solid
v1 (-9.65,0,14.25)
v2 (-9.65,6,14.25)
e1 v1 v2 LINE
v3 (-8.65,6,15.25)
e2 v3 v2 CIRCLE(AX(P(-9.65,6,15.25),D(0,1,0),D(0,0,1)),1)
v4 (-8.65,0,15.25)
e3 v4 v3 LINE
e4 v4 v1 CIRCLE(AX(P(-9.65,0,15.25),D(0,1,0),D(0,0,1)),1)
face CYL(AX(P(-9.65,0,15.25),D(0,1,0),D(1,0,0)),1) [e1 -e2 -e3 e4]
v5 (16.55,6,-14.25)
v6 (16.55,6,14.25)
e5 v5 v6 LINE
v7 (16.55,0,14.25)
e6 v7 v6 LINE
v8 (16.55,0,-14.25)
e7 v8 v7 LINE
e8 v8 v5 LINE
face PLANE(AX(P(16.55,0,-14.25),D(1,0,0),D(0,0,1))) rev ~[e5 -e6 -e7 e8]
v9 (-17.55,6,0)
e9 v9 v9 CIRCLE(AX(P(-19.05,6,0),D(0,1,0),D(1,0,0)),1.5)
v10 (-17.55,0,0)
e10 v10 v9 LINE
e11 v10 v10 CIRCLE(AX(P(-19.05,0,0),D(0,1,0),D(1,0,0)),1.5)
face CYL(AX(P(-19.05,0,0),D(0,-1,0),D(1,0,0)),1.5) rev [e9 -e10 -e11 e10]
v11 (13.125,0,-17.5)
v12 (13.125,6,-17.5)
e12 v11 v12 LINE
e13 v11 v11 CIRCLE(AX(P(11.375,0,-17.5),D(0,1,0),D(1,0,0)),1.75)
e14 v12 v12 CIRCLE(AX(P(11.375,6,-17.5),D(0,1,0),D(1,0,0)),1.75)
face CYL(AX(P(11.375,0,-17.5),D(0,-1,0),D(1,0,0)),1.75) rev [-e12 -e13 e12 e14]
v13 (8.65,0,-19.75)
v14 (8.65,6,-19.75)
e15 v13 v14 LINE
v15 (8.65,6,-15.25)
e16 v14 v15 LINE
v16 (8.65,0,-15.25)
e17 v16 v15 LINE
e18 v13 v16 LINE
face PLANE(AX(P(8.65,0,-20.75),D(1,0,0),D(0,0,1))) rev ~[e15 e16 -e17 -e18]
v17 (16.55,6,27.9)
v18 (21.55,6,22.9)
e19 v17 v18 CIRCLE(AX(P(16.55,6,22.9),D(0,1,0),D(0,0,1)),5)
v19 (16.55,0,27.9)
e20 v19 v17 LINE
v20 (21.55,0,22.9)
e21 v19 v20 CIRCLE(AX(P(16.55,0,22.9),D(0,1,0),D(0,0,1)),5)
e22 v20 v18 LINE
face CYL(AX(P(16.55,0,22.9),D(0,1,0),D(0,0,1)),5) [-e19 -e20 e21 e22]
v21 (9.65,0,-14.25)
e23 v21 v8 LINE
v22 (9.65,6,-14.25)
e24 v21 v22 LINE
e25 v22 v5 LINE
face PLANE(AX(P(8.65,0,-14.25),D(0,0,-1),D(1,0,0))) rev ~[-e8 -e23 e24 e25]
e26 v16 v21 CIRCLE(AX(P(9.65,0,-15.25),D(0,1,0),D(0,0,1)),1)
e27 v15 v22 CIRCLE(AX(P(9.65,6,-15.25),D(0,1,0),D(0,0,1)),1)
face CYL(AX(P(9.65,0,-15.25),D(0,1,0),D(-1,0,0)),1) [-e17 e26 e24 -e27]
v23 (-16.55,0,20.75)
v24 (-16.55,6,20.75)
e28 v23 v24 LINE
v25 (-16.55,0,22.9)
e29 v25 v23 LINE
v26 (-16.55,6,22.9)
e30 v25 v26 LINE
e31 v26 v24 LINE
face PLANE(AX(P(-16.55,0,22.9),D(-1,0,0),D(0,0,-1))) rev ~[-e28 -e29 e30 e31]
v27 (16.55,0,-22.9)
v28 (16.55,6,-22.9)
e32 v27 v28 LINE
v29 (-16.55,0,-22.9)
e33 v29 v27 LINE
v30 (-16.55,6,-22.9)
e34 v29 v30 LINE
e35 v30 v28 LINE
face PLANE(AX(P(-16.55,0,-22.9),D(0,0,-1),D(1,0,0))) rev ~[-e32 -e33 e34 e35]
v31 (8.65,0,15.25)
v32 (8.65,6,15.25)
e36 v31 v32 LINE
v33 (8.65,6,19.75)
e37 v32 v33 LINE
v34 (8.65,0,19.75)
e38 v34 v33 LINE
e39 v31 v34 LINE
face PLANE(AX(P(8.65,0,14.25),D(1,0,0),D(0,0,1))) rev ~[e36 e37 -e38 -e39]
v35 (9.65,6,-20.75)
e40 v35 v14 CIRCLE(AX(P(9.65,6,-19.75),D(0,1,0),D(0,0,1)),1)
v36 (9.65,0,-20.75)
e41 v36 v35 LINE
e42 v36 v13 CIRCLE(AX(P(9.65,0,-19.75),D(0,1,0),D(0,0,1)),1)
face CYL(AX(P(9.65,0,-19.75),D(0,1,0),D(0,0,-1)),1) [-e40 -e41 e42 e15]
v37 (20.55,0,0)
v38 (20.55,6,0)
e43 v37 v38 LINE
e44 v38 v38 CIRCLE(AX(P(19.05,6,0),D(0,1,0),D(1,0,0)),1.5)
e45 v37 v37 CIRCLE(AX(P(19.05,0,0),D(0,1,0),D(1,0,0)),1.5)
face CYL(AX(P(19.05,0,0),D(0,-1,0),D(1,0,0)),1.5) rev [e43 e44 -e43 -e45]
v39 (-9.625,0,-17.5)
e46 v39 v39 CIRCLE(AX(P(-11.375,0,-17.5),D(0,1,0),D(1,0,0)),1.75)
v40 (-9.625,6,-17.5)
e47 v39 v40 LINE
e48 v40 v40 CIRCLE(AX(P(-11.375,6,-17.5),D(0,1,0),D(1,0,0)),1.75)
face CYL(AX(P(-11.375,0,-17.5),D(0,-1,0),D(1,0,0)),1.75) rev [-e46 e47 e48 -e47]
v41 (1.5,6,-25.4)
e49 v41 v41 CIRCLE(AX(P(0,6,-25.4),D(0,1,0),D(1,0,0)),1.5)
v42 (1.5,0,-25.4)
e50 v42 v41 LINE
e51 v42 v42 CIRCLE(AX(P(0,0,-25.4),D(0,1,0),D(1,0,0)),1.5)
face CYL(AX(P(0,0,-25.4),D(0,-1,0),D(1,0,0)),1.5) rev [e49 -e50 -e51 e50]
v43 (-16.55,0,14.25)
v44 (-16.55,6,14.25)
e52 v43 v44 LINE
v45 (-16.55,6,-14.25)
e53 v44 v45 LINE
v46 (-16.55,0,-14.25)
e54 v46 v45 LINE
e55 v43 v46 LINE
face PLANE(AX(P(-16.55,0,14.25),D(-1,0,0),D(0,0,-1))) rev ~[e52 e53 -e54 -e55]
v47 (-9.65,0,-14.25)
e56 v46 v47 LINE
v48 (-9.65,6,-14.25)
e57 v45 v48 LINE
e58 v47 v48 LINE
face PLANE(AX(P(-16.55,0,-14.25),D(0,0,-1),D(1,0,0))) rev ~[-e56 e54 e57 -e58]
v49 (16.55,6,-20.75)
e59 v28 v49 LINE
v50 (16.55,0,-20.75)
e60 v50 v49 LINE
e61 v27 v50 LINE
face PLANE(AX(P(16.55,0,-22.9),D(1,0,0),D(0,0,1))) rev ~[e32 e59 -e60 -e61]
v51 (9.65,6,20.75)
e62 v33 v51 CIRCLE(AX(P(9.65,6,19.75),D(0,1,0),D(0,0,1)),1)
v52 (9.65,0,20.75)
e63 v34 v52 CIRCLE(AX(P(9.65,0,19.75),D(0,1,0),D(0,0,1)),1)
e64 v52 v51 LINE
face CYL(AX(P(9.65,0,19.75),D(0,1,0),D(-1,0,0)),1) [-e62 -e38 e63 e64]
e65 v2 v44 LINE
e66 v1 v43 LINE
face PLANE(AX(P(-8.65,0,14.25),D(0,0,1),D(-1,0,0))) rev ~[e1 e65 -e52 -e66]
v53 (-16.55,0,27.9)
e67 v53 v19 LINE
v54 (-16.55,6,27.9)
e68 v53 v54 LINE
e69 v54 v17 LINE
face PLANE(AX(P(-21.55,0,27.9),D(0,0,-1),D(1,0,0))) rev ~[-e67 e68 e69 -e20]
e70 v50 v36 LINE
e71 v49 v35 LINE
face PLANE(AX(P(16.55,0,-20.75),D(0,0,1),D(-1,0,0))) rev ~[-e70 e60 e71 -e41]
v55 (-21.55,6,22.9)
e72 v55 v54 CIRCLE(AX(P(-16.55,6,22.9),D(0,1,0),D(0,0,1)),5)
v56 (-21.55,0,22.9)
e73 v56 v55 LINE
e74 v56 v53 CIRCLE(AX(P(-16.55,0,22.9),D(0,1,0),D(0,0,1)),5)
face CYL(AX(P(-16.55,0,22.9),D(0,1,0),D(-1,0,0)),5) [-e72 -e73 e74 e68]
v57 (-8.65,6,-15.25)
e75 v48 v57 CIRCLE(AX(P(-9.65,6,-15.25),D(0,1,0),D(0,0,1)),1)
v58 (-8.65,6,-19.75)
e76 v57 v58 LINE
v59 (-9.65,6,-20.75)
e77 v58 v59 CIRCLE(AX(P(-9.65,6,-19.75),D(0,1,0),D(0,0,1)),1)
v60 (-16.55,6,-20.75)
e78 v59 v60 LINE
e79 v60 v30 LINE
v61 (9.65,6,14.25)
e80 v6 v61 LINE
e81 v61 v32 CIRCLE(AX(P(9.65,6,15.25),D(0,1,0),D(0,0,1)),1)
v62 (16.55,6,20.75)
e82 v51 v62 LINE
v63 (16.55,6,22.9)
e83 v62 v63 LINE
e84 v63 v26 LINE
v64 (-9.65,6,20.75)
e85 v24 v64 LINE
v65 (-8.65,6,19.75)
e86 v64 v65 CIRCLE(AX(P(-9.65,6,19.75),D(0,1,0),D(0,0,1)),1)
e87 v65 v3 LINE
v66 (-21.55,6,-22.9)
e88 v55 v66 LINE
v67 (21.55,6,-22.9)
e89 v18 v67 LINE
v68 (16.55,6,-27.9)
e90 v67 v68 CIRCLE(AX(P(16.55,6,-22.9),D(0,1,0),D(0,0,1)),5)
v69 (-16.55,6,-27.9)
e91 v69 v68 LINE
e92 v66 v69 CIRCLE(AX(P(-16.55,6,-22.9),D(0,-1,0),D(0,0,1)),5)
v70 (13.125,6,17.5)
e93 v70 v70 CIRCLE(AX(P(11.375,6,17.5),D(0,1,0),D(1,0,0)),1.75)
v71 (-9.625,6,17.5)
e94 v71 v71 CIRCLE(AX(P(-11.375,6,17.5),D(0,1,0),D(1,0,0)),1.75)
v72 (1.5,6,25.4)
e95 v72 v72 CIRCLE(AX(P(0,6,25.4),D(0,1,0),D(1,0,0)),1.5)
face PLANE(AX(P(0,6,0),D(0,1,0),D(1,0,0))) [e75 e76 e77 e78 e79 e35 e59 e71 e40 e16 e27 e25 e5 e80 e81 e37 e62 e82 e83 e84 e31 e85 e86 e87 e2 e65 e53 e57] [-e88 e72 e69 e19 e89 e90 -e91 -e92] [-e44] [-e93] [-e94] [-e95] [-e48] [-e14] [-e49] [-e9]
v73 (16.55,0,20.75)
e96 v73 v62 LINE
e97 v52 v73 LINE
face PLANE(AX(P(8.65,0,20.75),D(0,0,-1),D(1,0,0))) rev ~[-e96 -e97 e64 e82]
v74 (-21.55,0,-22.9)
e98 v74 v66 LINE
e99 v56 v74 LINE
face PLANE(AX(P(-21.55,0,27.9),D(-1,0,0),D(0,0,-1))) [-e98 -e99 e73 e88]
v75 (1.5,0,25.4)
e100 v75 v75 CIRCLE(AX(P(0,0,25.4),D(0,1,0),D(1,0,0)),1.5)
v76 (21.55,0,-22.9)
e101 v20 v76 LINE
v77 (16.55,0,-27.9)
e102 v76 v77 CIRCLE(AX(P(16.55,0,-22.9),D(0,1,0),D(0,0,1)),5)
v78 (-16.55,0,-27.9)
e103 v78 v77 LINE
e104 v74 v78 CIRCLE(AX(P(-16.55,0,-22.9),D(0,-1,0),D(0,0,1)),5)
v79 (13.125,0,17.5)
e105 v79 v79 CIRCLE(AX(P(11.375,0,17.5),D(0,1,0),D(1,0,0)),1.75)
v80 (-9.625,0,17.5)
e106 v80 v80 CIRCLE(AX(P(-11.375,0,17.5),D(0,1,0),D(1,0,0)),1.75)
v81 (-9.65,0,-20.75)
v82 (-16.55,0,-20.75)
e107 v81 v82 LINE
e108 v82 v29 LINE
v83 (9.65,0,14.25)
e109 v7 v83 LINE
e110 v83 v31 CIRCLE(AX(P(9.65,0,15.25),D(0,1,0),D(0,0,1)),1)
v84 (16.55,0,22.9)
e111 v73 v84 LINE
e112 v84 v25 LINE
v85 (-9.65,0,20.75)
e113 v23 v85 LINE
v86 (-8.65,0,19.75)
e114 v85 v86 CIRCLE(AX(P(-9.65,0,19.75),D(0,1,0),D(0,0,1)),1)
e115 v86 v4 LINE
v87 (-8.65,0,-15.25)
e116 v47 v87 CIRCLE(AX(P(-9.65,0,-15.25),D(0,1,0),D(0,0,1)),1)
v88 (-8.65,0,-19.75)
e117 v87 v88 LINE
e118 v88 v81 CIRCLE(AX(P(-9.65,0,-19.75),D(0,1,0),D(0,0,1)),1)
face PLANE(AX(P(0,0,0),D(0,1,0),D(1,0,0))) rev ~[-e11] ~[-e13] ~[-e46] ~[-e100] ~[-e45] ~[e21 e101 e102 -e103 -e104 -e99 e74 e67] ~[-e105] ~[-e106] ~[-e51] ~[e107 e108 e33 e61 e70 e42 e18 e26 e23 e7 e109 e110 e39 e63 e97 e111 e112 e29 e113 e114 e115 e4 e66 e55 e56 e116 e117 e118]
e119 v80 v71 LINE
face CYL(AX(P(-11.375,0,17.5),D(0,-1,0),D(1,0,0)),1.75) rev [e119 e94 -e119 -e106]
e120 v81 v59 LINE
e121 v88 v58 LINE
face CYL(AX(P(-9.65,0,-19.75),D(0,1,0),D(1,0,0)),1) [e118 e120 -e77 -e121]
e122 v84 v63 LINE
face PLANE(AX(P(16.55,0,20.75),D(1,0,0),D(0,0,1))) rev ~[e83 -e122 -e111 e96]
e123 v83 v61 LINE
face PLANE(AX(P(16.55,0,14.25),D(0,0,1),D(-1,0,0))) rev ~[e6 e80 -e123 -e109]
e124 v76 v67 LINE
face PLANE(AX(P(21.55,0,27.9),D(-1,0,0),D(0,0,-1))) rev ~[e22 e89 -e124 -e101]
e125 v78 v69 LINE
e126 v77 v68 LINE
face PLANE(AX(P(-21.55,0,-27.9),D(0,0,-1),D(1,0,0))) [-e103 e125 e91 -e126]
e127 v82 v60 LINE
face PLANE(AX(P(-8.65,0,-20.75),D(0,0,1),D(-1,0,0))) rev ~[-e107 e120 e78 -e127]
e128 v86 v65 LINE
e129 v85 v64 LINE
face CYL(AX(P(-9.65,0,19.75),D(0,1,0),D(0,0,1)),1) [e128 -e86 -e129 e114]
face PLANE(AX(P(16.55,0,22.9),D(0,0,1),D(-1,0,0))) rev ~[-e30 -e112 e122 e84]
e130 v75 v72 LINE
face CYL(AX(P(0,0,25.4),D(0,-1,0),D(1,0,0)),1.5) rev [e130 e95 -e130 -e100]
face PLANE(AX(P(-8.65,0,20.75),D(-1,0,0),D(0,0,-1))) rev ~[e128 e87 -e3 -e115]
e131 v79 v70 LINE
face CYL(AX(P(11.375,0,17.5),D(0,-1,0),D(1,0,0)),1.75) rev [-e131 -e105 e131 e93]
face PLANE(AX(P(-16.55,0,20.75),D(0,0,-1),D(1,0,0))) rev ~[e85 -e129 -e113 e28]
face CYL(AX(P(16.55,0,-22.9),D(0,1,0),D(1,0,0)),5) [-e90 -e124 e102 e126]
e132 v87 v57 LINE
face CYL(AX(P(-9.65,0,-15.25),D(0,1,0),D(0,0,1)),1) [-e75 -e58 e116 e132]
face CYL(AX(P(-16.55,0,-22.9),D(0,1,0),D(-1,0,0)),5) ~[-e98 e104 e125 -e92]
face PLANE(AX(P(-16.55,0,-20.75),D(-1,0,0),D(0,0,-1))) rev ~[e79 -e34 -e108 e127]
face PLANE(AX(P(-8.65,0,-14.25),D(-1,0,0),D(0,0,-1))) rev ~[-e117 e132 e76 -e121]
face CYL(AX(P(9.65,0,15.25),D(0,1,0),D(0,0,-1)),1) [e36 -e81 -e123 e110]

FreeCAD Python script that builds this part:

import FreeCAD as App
import Part
import Sketcher
from FreeCAD import Vector


def edges_at(feature, points):
    """Names of the edges that pass closest to the given points."""
    edges = feature.Shape.Edges
    near = lambda p: min(range(len(edges)), key=lambda i: edges[i].distToShape(Part.Vertex(*p))[0])
    return sorted({f"Edge{near(p) + 1}" for p in points})


def add_polygon(sketch, points):
    """Adds a closed chain of lines whose ends are joined by coincident constraints."""
    first, n = sketch.GeometryCount, len(points)
    for a, b in zip(points, points[1:] + points[:1]):
        sketch.addGeometry(Part.LineSegment(App.Vector(*a, 0), App.Vector(*b, 0)), False)
    for i in range(n):
        sketch.addConstraint(Sketcher.Constraint("Coincident", first + i, 2, first + (i + 1) % n, 1))

doc = App.newDocument("Part")
body = doc.addObject("PartDesign::Body", "Body")

# Sketch on XZ plane
sketch1 = doc.addObject("Sketcher::SketchObject", "Sketch")
body.addObject(sketch1)
sketch1.AttachmentSupport = (doc.XZ_Plane, [""])
sketch1.MapMode = "FlatFace"
add_polygon(sketch1, [(-21.6, -27.9), (-21.6, 27.9), (21.6, 27.9), (21.6, -27.9)])  # lines 0-3
sketch1.addGeometry(Part.Circle(Vector(-11.4, 17.5, 0), Vector(0, 0, 1), 1.8), False)  # 4
sketch1.addGeometry(Part.Circle(Vector(0, 25.4, 0), Vector(0, 0, 1), 1.5), False)  # 5
sketch1.addGeometry(Part.Circle(Vector(11.4, 17.5, 0), Vector(0, 0, 1), 1.8), False)  # 6
sketch1.addGeometry(Part.Circle(Vector(-19.1, 0, 0), Vector(0, 0, 1), 1.5), False)  # 7
sketch1.addGeometry(Part.Circle(Vector(-11.4, -17.5, 0), Vector(0, 0, 1), 1.8), False)  # 8
add_polygon(sketch1, [(16.6, 14.2), (8.7, 14.2), (8.7, 20.8), (16.6, 20.8), (16.6, 22.9), (-16.6, 22.9), (-16.6, 20.8), (-8.7, 20.8), (-8.7, 14.2), (-16.6, 14.2), (-16.6, -14.2), (-8.7, -14.2), (-8.7, -20.8), (-16.6, -20.8), (-16.6, -22.9), (16.6, -22.9), (16.6, -20.8), (8.7, -20.8), (8.7, -14.2), (16.6, -14.2)])  # lines 9-28
sketch1.addGeometry(Part.Circle(Vector(19.1, 0, 0), Vector(0, 0, 1), 1.5), False)  # 29
sketch1.addGeometry(Part.Circle(Vector(0, -25.4, 0), Vector(0, 0, 1), 1.5), False)  # 30
sketch1.addGeometry(Part.Circle(Vector(11.4, -17.5, 0), Vector(0, 0, 1), 1.8), False)  # 31
sketch1.addConstraint(Sketcher.Constraint("Vertical", 0))
sketch1.addConstraint(Sketcher.Constraint("Horizontal", 1))
sketch1.addConstraint(Sketcher.Constraint("Vertical", 2))
sketch1.addConstraint(Sketcher.Constraint("Horizontal", 3))
sketch1.addConstraint(Sketcher.Constraint("Horizontal", 9))
sketch1.addConstraint(Sketcher.Constraint("Vertical", 10))
sketch1.addConstraint(Sketcher.Constraint("Horizontal", 11))
sketch1.addConstraint(Sketcher.Constraint("Vertical", 12))
sketch1.addConstraint(Sketcher.Constraint("Horizontal", 13))
sketch1.addConstraint(Sketcher.Constraint("Vertical", 14))
sketch1.addConstraint(Sketcher.Constraint("Horizontal", 15))
sketch1.addConstraint(Sketcher.Constraint("Vertical", 16))
sketch1.addConstraint(Sketcher.Constraint("Horizontal", 17))
sketch1.addConstraint(Sketcher.Constraint("Vertical", 18))
sketch1.addConstraint(Sketcher.Constraint("Horizontal", 19))
sketch1.addConstraint(Sketcher.Constraint("Vertical", 20))
sketch1.addConstraint(Sketcher.Constraint("Horizontal", 21))
sketch1.addConstraint(Sketcher.Constraint("Vertical", 22))
sketch1.addConstraint(Sketcher.Constraint("Horizontal", 23))
sketch1.addConstraint(Sketcher.Constraint("Vertical", 24))
sketch1.addConstraint(Sketcher.Constraint("Horizontal", 25))
sketch1.addConstraint(Sketcher.Constraint("Vertical", 26))
sketch1.addConstraint(Sketcher.Constraint("Horizontal", 27))
sketch1.addConstraint(Sketcher.Constraint("Vertical", 28))
sketch1.addConstraint(Sketcher.Constraint("Equal", 4, 6))
sketch1.addConstraint(Sketcher.Constraint("Equal", 5, 7))
sketch1.addConstraint(Sketcher.Constraint("Equal", 6, 8))
sketch1.addConstraint(Sketcher.Constraint("Equal", 7, 29))
sketch1.addConstraint(Sketcher.Constraint("Equal", 29, 30))
sketch1.addConstraint(Sketcher.Constraint("Equal", 8, 31))
sketch1.addConstraint(Sketcher.Constraint("Symmetric", 6, 3, 8, 3, -1, 1))
sketch1.addConstraint(Sketcher.Constraint("Symmetric", 7, 3, 29, 3, -1, 1))
sketch1.addConstraint(Sketcher.Constraint("Symmetric", 5, 3, 30, 3, -1, 1))
sketch1.addConstraint(Sketcher.Constraint("Symmetric", 4, 3, 31, 3, -1, 1))
sketch1.addConstraint(Sketcher.Constraint("Symmetric", 0, 2, 2, 2, -1, 1))
sketch1.addConstraint(Sketcher.Constraint("Symmetric", 9, 2, 19, 2, -1, 1))
sketch1.addConstraint(Sketcher.Constraint("Symmetric", 11, 2, 21, 2, -1, 1))
sketch1.addConstraint(Sketcher.Constraint("Symmetric", 13, 2, 23, 2, -1, 1))
sketch1.addConstraint(Sketcher.Constraint("Symmetric", 15, 2, 25, 2, -1, 1))
sketch1.addConstraint(Sketcher.Constraint("Symmetric", 17, 2, 27, 2, -1, 1))
sketch1.addConstraint(Sketcher.Constraint("Symmetric", 4, 3, 6, 3, -2))
sketch1.addConstraint(Sketcher.Constraint("Symmetric", 11, 2, 14, 2, -2))
sketch1.addConstraint(Sketcher.Constraint("Symmetric", 9, 2, 16, 2, -2))
sketch1.addConstraint(Sketcher.Constraint("PointOnObject", 5, 3, -2))
sketch1.addConstraint(Sketcher.Constraint("PointOnObject", 7, 3, -1))
sketch1.addConstraint(Sketcher.Constraint("Vertical", 14, 2, 17, 2))
sketch1.addConstraint(Sketcher.Constraint("Diameter", 5, 3.0))
sketch1.addConstraint(Sketcher.Constraint("Diameter", 4, 3.5))
sketch1.addConstraint(Sketcher.Constraint("DistanceX", 1, 1, 1, 2, 43.1))
sketch1.addConstraint(Sketcher.Constraint("DistanceX", 9, 2, 9, 1, 7.9))
sketch1.addConstraint(Sketcher.Constraint("DistanceX", 13, 2, 13, 1, 33.1))
sketch1.addConstraint(Sketcher.Constraint("DistanceY", 0, 1, 0, 2, 55.8))
sketch1.addConstraint(Sketcher.Constraint("DistanceY", 10, 1, 10, 2, 6.5))
sketch1.addConstraint(Sketcher.Constraint("DistanceY", 18, 2, 18, 1, 28.5))
sketch1.addConstraint(Sketcher.Constraint("DistanceY", 8, 3, 4, 3, 35.0))
sketch1.addConstraint(Sketcher.Constraint("DistanceY", 12, 2, 1, 2, 5.0))
sketch1.addConstraint(Sketcher.Constraint("DistanceY", -1, 1, 5, 3, 25.4))
sketch1.addConstraint(Sketcher.Constraint("DistanceX", 7, 3, 29, 3, 38.1))
sketch1.addConstraint(Sketcher.Constraint("DistanceX", 4, 3, 6, 3, 22.75))
pad1 = doc.addObject("PartDesign::Pad", "Pad")
body.addObject(pad1)
pad1.Profile = sketch1
pad1.Length = 6
pad1.Reversed = True
doc.recompute()

fillet = doc.addObject("PartDesign::Fillet", "Fillet")
body.addObject(fillet)
fillet.Base = (pad1, edges_at(pad1, [
    (-21.55, 3, 27.9),
    (-21.55, 3, -27.9),
    (21.55, 3, -27.9),
    (21.55, 3, 27.9),
]))
fillet.Radius = 5
doc.recompute()

fillet2 = doc.addObject("PartDesign::Fillet", "Fillet001")
body.addObject(fillet2)
fillet2.Base = (fillet, edges_at(fillet, [
    (-8.65, 3, -20.75),
    (-8.65, 3, -14.25),
    (-8.65, 3, 14.25),
    (-8.65, 3, 20.75),
    (8.65, 3, 20.75),
    (8.65, 3, 14.25),
    (8.65, 3, -14.25),
    (8.65, 3, -20.75),
]))
fillet2.Radius = 1

doc.recompute()
